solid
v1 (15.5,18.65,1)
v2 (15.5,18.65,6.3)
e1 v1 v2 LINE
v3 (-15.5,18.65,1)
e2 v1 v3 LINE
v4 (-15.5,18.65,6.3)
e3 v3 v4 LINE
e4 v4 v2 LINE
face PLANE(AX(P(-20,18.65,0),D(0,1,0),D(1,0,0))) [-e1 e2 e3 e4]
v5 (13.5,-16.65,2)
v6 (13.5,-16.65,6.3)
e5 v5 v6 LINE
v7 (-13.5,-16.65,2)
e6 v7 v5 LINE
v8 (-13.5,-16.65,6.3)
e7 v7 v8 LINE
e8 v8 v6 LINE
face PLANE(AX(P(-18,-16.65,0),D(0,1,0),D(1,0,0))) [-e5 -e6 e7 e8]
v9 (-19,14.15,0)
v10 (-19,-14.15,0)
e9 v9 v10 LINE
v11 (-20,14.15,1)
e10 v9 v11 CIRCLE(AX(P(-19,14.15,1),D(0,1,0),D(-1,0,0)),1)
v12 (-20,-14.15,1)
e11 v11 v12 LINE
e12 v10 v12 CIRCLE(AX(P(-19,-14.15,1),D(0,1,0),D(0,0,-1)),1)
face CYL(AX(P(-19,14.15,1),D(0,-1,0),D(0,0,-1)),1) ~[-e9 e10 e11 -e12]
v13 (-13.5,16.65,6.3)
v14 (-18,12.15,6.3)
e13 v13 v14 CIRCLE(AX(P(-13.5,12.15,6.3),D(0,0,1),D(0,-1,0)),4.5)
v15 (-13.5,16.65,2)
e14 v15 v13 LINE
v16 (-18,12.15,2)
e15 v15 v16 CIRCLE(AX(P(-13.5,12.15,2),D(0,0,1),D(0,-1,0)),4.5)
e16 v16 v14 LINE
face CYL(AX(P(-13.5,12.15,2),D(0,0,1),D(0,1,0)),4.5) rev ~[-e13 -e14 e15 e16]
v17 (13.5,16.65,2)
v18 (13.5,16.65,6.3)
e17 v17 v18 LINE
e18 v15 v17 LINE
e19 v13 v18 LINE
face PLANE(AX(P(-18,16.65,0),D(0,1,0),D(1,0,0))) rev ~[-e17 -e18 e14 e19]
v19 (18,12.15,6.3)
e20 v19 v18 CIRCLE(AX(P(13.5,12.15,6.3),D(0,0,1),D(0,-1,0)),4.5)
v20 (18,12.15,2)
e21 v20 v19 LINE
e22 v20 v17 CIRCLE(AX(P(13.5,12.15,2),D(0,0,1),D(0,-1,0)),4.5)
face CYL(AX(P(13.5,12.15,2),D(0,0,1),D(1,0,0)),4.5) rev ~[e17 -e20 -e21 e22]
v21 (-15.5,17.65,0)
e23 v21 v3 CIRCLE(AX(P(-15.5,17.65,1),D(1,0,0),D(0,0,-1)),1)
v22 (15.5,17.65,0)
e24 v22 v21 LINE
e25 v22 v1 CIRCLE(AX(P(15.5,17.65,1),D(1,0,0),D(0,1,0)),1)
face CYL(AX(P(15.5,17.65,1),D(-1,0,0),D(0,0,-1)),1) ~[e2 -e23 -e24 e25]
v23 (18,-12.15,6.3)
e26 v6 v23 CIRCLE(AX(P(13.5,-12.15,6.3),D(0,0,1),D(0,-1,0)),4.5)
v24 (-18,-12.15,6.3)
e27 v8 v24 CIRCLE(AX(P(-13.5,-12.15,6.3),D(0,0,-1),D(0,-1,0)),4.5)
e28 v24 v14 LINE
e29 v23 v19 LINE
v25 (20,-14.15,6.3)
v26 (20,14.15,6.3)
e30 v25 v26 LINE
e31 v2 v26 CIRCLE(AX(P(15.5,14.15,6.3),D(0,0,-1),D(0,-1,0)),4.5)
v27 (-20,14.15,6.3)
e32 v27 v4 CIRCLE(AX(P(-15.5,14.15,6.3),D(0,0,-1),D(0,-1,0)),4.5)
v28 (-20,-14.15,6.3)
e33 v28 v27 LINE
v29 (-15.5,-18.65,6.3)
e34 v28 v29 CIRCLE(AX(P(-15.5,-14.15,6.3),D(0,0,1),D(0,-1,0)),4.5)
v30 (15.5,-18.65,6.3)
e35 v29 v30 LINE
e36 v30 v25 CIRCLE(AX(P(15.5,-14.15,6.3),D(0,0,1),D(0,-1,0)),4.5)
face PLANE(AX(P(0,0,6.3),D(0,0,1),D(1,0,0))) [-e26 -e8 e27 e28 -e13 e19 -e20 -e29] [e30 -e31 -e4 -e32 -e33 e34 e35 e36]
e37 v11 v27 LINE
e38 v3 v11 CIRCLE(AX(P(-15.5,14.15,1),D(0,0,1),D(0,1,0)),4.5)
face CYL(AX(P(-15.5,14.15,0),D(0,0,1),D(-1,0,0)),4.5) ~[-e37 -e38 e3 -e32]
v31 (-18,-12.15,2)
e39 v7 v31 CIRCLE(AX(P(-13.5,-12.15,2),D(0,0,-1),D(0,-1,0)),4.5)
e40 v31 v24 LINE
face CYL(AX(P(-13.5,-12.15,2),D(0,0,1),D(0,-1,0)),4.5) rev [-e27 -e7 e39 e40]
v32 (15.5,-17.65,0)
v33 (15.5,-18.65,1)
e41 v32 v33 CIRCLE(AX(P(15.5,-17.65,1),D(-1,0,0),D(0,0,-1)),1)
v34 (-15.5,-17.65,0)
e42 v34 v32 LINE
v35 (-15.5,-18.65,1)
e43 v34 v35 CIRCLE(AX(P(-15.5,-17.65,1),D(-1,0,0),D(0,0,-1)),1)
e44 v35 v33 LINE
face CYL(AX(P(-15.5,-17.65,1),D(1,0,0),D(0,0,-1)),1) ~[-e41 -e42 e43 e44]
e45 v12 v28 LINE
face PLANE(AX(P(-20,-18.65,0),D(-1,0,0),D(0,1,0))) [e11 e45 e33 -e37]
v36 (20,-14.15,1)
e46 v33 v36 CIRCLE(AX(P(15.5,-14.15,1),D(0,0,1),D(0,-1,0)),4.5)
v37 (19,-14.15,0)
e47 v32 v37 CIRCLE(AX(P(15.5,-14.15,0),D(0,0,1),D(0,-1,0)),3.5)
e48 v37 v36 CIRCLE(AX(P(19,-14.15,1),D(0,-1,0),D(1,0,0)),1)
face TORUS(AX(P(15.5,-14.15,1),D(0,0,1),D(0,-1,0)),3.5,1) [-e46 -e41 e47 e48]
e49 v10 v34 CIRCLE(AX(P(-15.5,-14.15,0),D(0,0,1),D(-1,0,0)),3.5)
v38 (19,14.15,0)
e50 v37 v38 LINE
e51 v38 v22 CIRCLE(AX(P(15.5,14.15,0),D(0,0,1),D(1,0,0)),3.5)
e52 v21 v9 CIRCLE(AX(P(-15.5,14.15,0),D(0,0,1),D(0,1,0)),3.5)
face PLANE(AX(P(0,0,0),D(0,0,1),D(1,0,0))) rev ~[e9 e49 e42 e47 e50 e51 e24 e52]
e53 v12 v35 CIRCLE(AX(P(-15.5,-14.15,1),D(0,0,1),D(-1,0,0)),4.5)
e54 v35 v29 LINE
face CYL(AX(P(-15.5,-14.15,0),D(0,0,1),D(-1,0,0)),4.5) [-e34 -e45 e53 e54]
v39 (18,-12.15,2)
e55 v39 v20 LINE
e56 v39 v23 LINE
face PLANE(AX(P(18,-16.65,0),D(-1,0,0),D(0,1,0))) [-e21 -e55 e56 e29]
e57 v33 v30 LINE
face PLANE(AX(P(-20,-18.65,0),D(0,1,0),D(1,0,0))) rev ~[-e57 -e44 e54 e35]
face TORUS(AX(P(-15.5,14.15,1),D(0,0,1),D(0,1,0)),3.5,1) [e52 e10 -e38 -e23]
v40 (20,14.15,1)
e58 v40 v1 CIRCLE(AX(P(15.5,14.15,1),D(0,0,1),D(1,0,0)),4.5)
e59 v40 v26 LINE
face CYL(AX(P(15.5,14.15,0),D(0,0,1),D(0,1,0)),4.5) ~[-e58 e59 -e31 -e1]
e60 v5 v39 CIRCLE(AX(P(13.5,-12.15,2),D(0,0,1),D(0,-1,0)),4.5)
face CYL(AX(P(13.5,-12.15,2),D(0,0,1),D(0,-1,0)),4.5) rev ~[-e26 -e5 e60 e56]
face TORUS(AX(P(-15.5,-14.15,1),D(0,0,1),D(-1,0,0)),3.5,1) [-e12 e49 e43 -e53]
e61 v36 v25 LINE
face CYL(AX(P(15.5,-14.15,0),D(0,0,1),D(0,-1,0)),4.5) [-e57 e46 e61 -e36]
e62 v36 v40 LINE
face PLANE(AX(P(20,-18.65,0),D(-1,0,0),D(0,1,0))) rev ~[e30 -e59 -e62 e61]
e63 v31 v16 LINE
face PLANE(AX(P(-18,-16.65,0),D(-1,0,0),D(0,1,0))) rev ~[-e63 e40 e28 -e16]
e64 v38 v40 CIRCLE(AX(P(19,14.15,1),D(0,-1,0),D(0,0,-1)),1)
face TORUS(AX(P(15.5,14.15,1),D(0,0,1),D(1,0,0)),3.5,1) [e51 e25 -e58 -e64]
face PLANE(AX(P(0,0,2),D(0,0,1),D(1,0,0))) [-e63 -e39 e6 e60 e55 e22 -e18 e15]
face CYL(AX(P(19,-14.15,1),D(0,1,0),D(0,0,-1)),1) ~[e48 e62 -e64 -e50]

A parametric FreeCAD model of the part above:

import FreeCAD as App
import Part
import Sketcher

V = App.Vector
Q = App.Units.Quantity


def edges_at(feature, points):
    """Names of the edges that pass closest to the given points."""
    edges = feature.Shape.Edges
    near = lambda p: min(range(len(edges)), key=lambda i: edges[i].distToShape(Part.Vertex(*p))[0])
    return sorted({f"Edge{near(p) + 1}" for p in points})

doc = App.newDocument("Part")
body = doc.addObject("PartDesign::Body", "Body")

# Sketch on XY plane
sketch1 = doc.addObject("Sketcher::SketchObject", "Sketch")
body.addObject(sketch1)
sketch1.AttachmentSupport = (doc.XY_Plane, [""])
sketch1.MapMode = "FlatFace"
sketch1.addGeometry([
    Part.LineSegment(V(-20, 19, 0), V(-20, -19, 0)),  # 0
    Part.LineSegment(V(-20, -19, 0), V(20, -19, 0)),  # 1
    Part.LineSegment(V(20, -19, 0), V(20, 19, 0)),  # 2
    Part.LineSegment(V(20, 19, 0), V(-20, 19, 0)),  # 3
    Part.LineSegment(V(18, -17, 0), V(-18, -17, 0)),  # 4
    Part.LineSegment(V(-18, -17, 0), V(-18, 17, 0)),  # 5
    Part.LineSegment(V(-18, 17, 0), V(18, 17, 0)),  # 6
    Part.LineSegment(V(18, 17, 0), V(18, -17, 0)),  # 7
], False)
sketch1.addConstraint([
    Sketcher.Constraint("Coincident", 0, 2, 1, 1),
    Sketcher.Constraint("Coincident", 1, 2, 2, 1),
    Sketcher.Constraint("Coincident", 2, 2, 3, 1),
    Sketcher.Constraint("Coincident", 3, 2, 0, 1),
    Sketcher.Constraint("Coincident", 4, 2, 5, 1),
    Sketcher.Constraint("Coincident", 5, 2, 6, 1),
    Sketcher.Constraint("Coincident", 6, 2, 7, 1),
    Sketcher.Constraint("Coincident", 7, 2, 4, 1),
    Sketcher.Constraint("Vertical", 0),
    Sketcher.Constraint("Horizontal", 1),
    Sketcher.Constraint("Vertical", 2),
    Sketcher.Constraint("Horizontal", 3),
    Sketcher.Constraint("Horizontal", 4),
    Sketcher.Constraint("Vertical", 5),
    Sketcher.Constraint("Horizontal", 6),
    Sketcher.Constraint("Vertical", 7),
    Sketcher.Constraint("Symmetric", 0, 2, 2, 2, -1, 1),
    Sketcher.Constraint("Symmetric", 4, 2, 6, 2, -1, 1),
    Sketcher.Constraint("DistanceX", 1, 1, 1, 2, Q("40 mm")),
    Sketcher.Constraint("DistanceX", 4, 2, 4, 1, Q("36 mm")),
    Sketcher.Constraint("DistanceY", 0, 2, 0, 1, Q("37.3 mm")),
    Sketcher.Constraint("DistanceY", 5, 1, 5, 2, Q("33.3 mm")),
])
pad1 = doc.addObject("PartDesign::Pad", "Pad")
body.addObject(pad1)
pad1.Profile = sketch1
pad1.Length = 6.3

# Sketch on XY plane
sketch2 = doc.addObject("Sketcher::SketchObject", "Sketch001")
body.addObject(sketch2)
sketch2.AttachmentSupport = (doc.XY_Plane, [""])
sketch2.MapMode = "FlatFace"
sketch2.addGeometry([
    Part.LineSegment(V(-18, 17, 0), V(-18, -17, 0)),
    Part.LineSegment(V(-18, -17, 0), V(18, -17, 0)),
    Part.LineSegment(V(18, -17, 0), V(18, 17, 0)),
    Part.LineSegment(V(18, 17, 0), V(-18, 17, 0)),
], False)
sketch2.addConstraint([
    Sketcher.Constraint("Coincident", 0, 2, 1, 1),
    Sketcher.Constraint("Coincident", 1, 2, 2, 1),
    Sketcher.Constraint("Coincident", 2, 2, 3, 1),
    Sketcher.Constraint("Coincident", 3, 2, 0, 1),
    Sketcher.Constraint("Vertical", 0),
    Sketcher.Constraint("Horizontal", 1),
    Sketcher.Constraint("Vertical", 2),
    Sketcher.Constraint("Horizontal", 3),
    Sketcher.Constraint("Symmetric", 0, 2, 2, 2, -1, 1),
    Sketcher.Constraint("DistanceX", 1, 1, 1, 2, Q("36 mm")),
    Sketcher.Constraint("DistanceY", 0, 2, 0, 1, Q("33.3 mm")),
])
pad2 = doc.addObject("PartDesign::Pad", "Pad001")
body.addObject(pad2)
pad2.Profile = sketch2
pad2.Length = 2
doc.recompute()

fillet = doc.addObject("PartDesign::Fillet", "Fillet")
body.addObject(fillet)
fillet.Base = (pad2, edges_at(pad2, [
    (-18, 16.65, 4.15),
    (18, 16.65, 4.15),
    (18, -16.65, 4.15),
    (-18, -16.65, 4.15),
    (-20, -18.65, 3.15),
    (20, -18.65, 3.15),
    (20, 18.65, 3.15),
    (-20, 18.65, 3.15),
]))
fillet.Radius = 4.5
doc.recompute()

fillet2 = doc.addObject("PartDesign::Fillet", "Fillet001")
body.addObject(fillet2)
fillet2.Base = (fillet, edges_at(fillet, [(0, -18.65, 0)]))
fillet2.Radius = 1

doc.recompute()
